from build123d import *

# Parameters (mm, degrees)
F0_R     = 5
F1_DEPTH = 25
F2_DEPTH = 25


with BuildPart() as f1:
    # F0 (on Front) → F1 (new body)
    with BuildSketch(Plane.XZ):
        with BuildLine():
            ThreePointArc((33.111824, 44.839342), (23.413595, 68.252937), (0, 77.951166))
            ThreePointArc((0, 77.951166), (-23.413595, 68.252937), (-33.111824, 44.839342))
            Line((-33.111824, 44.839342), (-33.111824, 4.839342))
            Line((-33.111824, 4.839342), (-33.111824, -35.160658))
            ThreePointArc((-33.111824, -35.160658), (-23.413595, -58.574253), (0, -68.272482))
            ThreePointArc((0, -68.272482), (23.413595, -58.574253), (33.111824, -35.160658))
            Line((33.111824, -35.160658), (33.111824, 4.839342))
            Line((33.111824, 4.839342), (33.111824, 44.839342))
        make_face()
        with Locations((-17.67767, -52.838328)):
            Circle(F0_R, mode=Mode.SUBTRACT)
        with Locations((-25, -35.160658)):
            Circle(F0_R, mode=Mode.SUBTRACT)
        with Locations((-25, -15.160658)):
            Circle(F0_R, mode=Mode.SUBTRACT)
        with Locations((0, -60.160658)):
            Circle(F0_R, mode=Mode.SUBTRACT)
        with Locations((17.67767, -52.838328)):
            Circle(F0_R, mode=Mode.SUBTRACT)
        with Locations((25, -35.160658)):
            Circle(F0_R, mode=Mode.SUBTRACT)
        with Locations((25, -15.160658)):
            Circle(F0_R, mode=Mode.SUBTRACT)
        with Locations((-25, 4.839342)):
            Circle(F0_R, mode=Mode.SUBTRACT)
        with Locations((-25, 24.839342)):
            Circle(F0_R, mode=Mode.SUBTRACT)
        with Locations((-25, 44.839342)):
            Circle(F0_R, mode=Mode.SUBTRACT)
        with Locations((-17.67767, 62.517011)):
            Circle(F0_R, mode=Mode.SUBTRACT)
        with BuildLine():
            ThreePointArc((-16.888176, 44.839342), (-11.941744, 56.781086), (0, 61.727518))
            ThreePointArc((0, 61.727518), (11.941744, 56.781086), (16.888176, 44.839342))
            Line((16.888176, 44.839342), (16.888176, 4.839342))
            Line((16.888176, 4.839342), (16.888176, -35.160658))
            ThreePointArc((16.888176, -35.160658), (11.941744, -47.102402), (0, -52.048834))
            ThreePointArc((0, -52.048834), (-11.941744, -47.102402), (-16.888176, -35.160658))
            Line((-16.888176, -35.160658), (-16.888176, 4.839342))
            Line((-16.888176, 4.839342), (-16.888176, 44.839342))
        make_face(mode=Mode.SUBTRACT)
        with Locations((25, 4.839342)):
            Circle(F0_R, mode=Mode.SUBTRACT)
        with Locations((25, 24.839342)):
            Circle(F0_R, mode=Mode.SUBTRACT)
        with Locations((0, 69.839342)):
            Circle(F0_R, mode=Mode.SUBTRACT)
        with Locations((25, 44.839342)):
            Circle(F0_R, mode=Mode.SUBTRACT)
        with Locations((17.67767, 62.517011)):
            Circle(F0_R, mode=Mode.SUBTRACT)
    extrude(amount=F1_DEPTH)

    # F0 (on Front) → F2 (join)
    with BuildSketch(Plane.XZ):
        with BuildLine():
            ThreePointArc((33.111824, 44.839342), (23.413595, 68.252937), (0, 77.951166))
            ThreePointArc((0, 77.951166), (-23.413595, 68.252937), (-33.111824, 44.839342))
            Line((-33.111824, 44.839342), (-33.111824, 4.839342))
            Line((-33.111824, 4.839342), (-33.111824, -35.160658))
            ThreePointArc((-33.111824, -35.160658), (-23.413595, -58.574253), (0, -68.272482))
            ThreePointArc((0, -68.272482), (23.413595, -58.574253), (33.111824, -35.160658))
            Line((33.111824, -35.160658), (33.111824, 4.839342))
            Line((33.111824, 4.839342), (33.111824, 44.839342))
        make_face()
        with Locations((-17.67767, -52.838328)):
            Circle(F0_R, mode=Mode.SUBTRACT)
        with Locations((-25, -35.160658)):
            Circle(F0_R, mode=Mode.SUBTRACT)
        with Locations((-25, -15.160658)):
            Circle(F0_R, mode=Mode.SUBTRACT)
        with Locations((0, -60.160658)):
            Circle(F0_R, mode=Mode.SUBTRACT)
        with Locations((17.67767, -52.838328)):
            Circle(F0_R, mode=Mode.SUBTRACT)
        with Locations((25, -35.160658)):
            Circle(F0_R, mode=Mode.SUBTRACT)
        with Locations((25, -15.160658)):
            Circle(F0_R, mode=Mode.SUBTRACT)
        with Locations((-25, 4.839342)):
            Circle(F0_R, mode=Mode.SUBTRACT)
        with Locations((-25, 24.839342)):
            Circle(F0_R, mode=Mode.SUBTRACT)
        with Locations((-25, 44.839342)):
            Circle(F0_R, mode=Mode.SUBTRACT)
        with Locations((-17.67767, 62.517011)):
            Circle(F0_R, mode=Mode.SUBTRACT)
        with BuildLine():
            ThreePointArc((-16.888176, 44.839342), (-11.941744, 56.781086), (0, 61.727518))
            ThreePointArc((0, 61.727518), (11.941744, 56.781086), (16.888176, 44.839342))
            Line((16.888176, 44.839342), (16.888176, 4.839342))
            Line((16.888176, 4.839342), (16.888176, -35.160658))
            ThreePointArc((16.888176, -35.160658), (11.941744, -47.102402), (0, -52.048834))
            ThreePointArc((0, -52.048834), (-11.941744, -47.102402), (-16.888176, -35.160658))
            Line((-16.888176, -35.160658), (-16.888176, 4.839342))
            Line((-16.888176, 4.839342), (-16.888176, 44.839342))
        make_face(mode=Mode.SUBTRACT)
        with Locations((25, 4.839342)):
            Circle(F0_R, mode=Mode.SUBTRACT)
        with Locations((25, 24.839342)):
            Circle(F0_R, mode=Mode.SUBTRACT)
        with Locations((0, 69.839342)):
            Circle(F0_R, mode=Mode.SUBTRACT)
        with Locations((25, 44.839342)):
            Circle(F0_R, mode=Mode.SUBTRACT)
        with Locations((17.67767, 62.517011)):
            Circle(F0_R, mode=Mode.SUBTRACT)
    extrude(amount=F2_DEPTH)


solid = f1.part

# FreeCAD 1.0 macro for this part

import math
import FreeCAD as App
import Part
import Sketcher
from FreeCAD import Vector

doc = App.newDocument("Part")
body = doc.addObject("PartDesign::Body", "Body")

# Sketch on XZ plane
sketch1 = doc.addObject("Sketcher::SketchObject", "Sketch")
body.addObject(sketch1)
sketch1.AttachmentSupport = (doc.XZ_Plane, [""])
sketch1.MapMode = "FlatFace"
sketch1.addGeometry([
    Part.ArcOfCircle(Part.Circle(Vector(0, 45, 0), Vector(0, 0, 1), 33), math.radians(0), math.radians(90)),  # 0
    Part.ArcOfCircle(Part.Circle(Vector(0, 45, 0), Vector(0, 0, 1), 33), math.radians(90), math.radians(180)),  # 1
    Part.LineSegment(Vector(-33, 45, 0), Vector(-33, -35, 0)),  # 2
    Part.ArcOfCircle(Part.Circle(Vector(0, -35, 0), Vector(0, 0, 1), 33), math.radians(-180), math.radians(-90)),  # 3
    Part.ArcOfCircle(Part.Circle(Vector(0, -35, 0), Vector(0, 0, 1), 33), math.radians(-90), math.radians(0)),  # 4
    Part.LineSegment(Vector(33, -35, 0), Vector(33, 45, 0)),  # 5
    Part.Circle(Vector(-18, -53, 0), Vector(0, 0, 1), 5),  # 6
    Part.Circle(Vector(-25, -35, 0), Vector(0, 0, 1), 5),  # 7
    Part.Circle(Vector(-25, -15, 0), Vector(0, 0, 1), 5),  # 8
    Part.Circle(Vector(0, -60, 0), Vector(0, 0, 1), 5),  # 9
    Part.Circle(Vector(18, -53, 0), Vector(0, 0, 1), 5),  # 10
    Part.Circle(Vector(25, -35, 0), Vector(0, 0, 1), 5),  # 11
    Part.Circle(Vector(25, -15, 0), Vector(0, 0, 1), 5),  # 12
    Part.Circle(Vector(-25, 5, 0), Vector(0, 0, 1), 5),  # 13
    Part.Circle(Vector(-25, 25, 0), Vector(0, 0, 1), 5),  # 14
    Part.Circle(Vector(-25, 45, 0), Vector(0, 0, 1), 5),  # 15
    Part.Circle(Vector(-18, 63, 0), Vector(0, 0, 1), 5),  # 16
    Part.LineSegment(Vector(-17, -35, 0), Vector(-17, 45, 0)),  # 17
    Part.ArcOfCircle(Part.Circle(Vector(0, 45, 0), Vector(0, 0, 1), 17), math.radians(90), math.radians(180)),  # 18
    Part.ArcOfCircle(Part.Circle(Vector(0, 45, 0), Vector(0, 0, 1), 17), math.radians(0), math.radians(90)),  # 19
    Part.LineSegment(Vector(17, 45, 0), Vector(17, -35, 0)),  # 20
    Part.ArcOfCircle(Part.Circle(Vector(0, -35, 0), Vector(0, 0, 1), 17), math.radians(-90), math.radians(0)),  # 21
    Part.ArcOfCircle(Part.Circle(Vector(0, -35, 0), Vector(0, 0, 1), 17), math.radians(180), math.radians(270)),  # 22
    Part.Circle(Vector(25, 5, 0), Vector(0, 0, 1), 5),  # 23
    Part.Circle(Vector(25, 25, 0), Vector(0, 0, 1), 5),  # 24
    Part.Circle(Vector(0, 70, 0), Vector(0, 0, 1), 5),  # 25
    Part.Circle(Vector(25, 45, 0), Vector(0, 0, 1), 5),  # 26
    Part.Circle(Vector(18, 63, 0), Vector(0, 0, 1), 5),  # 27
], False)
sketch1.addConstraint([
    Sketcher.Constraint("Tangent", 0, 2, 1, 1),
    Sketcher.Constraint("Tangent", 1, 2, 2, 1),
    Sketcher.Constraint("Tangent", 2, 2, 3, 1),
    Sketcher.Constraint("Tangent", 3, 2, 4, 1),
    Sketcher.Constraint("Tangent", 4, 2, 5, 1),
    Sketcher.Constraint("Tangent", 5, 2, 0, 1),
    Sketcher.Constraint("Tangent", 17, 2, 18, 2),
    Sketcher.Constraint("Tangent", 18, 1, 19, 2),
    Sketcher.Constraint("Tangent", 19, 1, 20, 1),
    Sketcher.Constraint("Tangent", 20, 2, 21, 2),
    Sketcher.Constraint("Tangent", 21, 1, 22, 2),
    Sketcher.Constraint("Tangent", 22, 1, 17, 1),
    Sketcher.Constraint("Vertical", 2),
    Sketcher.Constraint("Vertical", 5),
    Sketcher.Constraint("Vertical", 17),
    Sketcher.Constraint("Vertical", 20),
    Sketcher.Constraint("Coincident", 18, 3, 0, 3),
    Sketcher.Constraint("Coincident", 21, 3, 3, 3),
    Sketcher.Constraint("Equal", 0, 1),
    Sketcher.Constraint("Equal", 1, 3),
    Sketcher.Constraint("Equal", 6, 7),
    Sketcher.Constraint("Equal", 7, 8),
    Sketcher.Constraint("Equal", 8, 9),
    Sketcher.Constraint("Equal", 9, 10),
    Sketcher.Constraint("Equal", 10, 11),
    Sketcher.Constraint("Equal", 11, 12),
    Sketcher.Constraint("Equal", 12, 13),
    Sketcher.Constraint("Equal", 13, 14),
    Sketcher.Constraint("Equal", 14, 15),
    Sketcher.Constraint("Equal", 15, 16),
    Sketcher.Constraint("Equal", 18, 19),
    Sketcher.Constraint("Equal", 16, 23),
    Sketcher.Constraint("Equal", 23, 24),
    Sketcher.Constraint("Equal", 24, 25),
    Sketcher.Constraint("Equal", 25, 26),
    Sketcher.Constraint("Equal", 26, 27),
    Sketcher.Constraint("Symmetric", 6, 3, 10, 3, -2),
    Sketcher.Constraint("Symmetric", 7, 3, 11, 3, -2),
    Sketcher.Constraint("Symmetric", 8, 3, 12, 3, -2),
    Sketcher.Constraint("Symmetric", 13, 3, 23, 3, -2),
    Sketcher.Constraint("Symmetric", 14, 3, 24, 3, -2),
    Sketcher.Constraint("Symmetric", 15, 3, 26, 3, -2),
    Sketcher.Constraint("Symmetric", 16, 3, 27, 3, -2),
    Sketcher.Constraint("PointOnObject", 0, 3, -2),
    Sketcher.Constraint("PointOnObject", 9, 3, -2),
    Sketcher.Constraint("PointOnObject", 25, 3, -2),
    Sketcher.Constraint("PointOnObject", 0, 2, -2),
    Sketcher.Constraint("PointOnObject", 3, 2, -2),
    Sketcher.Constraint("PointOnObject", 18, 1, -2),
    Sketcher.Constraint("PointOnObject", 21, 1, -2),
    Sketcher.Constraint("Horizontal", 4, 3, 7, 3),
    Sketcher.Constraint("Horizontal", 1, 3, 15, 3),
    Sketcher.Constraint("Vertical", 7, 3, 8, 3),
    Sketcher.Constraint("Vertical", 8, 3, 13, 3),
    Sketcher.Constraint("Vertical", 13, 3, 14, 3),
    Sketcher.Constraint("Vertical", 14, 3, 15, 3),
    Sketcher.Constraint("Vertical", 6, 3, 16, 3),
    Sketcher.Constraint("Diameter", 6, 10.0),
    Sketcher.Constraint("DistanceY", 2, 2, 2, 1, 80.0),
    Sketcher.Constraint("DistanceX", 7, 3, -1, 1, 25.0),
    Sketcher.Constraint("DistanceY", 7, 3, 8, 3, 20.0),
    Sketcher.Constraint("DistanceY", 9, 3, 3, 3, 25.000001),
    Sketcher.Constraint("DistanceY", 8, 3, 13, 3, 20.0),
    Sketcher.Constraint("DistanceY", 13, 3, 14, 3, 20.0),
    Sketcher.Constraint("DistanceY", 18, 3, 25, 3, 24.999999),
    Sketcher.Constraint("Radius", 0, 33.111825),
    Sketcher.Constraint("Radius", 18, 16.888175),
    Sketcher.Constraint("DistanceY", -1, 1, 0, 3, 44.839341),
    Sketcher.Constraint("DistanceX", 6, 3, -1, 1, 17.67767),
    Sketcher.Constraint("DistanceY", -1, 1, 16, 3, 62.517011),
    Sketcher.Constraint("DistanceY", 6, 3, 4, 3, 17.677671),
])
pad1 = doc.addObject("PartDesign::Pad", "Pad")
body.addObject(pad1)
pad1.Profile = sketch1
pad1.Length = 25

# Sketch on XZ plane
sketch2 = doc.addObject("Sketcher::SketchObject", "Sketch001")
body.addObject(sketch2)
sketch2.AttachmentSupport = (doc.XZ_Plane, [""])
sketch2.MapMode = "FlatFace"
sketch2.addGeometry([
    Part.ArcOfCircle(Part.Circle(Vector(0, 45, 0), Vector(0, 0, 1), 33), math.radians(0), math.radians(90)),  # 0
    Part.ArcOfCircle(Part.Circle(Vector(0, 45, 0), Vector(0, 0, 1), 33), math.radians(90), math.radians(180)),  # 1
    Part.LineSegment(Vector(-33, 45, 0), Vector(-33, -35, 0)),  # 2
    Part.ArcOfCircle(Part.Circle(Vector(0, -35, 0), Vector(0, 0, 1), 33), math.radians(-180), math.radians(-90)),  # 3
    Part.ArcOfCircle(Part.Circle(Vector(0, -35, 0), Vector(0, 0, 1), 33), math.radians(-90), math.radians(0)),  # 4
    Part.LineSegment(Vector(33, -35, 0), Vector(33, 45, 0)),  # 5
    Part.Circle(Vector(-18, -53, 0), Vector(0, 0, 1), 5),  # 6
    Part.Circle(Vector(-25, -35, 0), Vector(0, 0, 1), 5),  # 7
    Part.Circle(Vector(-25, -15, 0), Vector(0, 0, 1), 5),  # 8
    Part.Circle(Vector(0, -60, 0), Vector(0, 0, 1), 5),  # 9
    Part.Circle(Vector(18, -53, 0), Vector(0, 0, 1), 5),  # 10
    Part.Circle(Vector(25, -35, 0), Vector(0, 0, 1), 5),  # 11
    Part.Circle(Vector(25, -15, 0), Vector(0, 0, 1), 5),  # 12
    Part.Circle(Vector(-25, 5, 0), Vector(0, 0, 1), 5),  # 13
    Part.Circle(Vector(-25, 25, 0), Vector(0, 0, 1), 5),  # 14
    Part.Circle(Vector(-25, 45, 0), Vector(0, 0, 1), 5),  # 15
    Part.Circle(Vector(-18, 63, 0), Vector(0, 0, 1), 5),  # 16
    Part.LineSegment(Vector(-17, -35, 0), Vector(-17, 45, 0)),  # 17
    Part.ArcOfCircle(Part.Circle(Vector(0, 45, 0), Vector(0, 0, 1), 17), math.radians(90), math.radians(180)),  # 18
    Part.ArcOfCircle(Part.Circle(Vector(0, 45, 0), Vector(0, 0, 1), 17), math.radians(0), math.radians(90)),  # 19
    Part.LineSegment(Vector(17, 45, 0), Vector(17, -35, 0)),  # 20
    Part.ArcOfCircle(Part.Circle(Vector(0, -35, 0), Vector(0, 0, 1), 17), math.radians(-90), math.radians(0)),  # 21
    Part.ArcOfCircle(Part.Circle(Vector(0, -35, 0), Vector(0, 0, 1), 17), math.radians(180), math.radians(270)),  # 22
    Part.Circle(Vector(25, 5, 0), Vector(0, 0, 1), 5),  # 23
    Part.Circle(Vector(25, 25, 0), Vector(0, 0, 1), 5),  # 24
    Part.Circle(Vector(0, 70, 0), Vector(0, 0, 1), 5),  # 25
    Part.Circle(Vector(25, 45, 0), Vector(0, 0, 1), 5),  # 26
    Part.Circle(Vector(18, 63, 0), Vector(0, 0, 1), 5),  # 27
], False)
sketch2.addConstraint([
    Sketcher.Constraint("Tangent", 0, 2, 1, 1),
    Sketcher.Constraint("Tangent", 1, 2, 2, 1),
    Sketcher.Constraint("Tangent", 2, 2, 3, 1),
    Sketcher.Constraint("Tangent", 3, 2, 4, 1),
    Sketcher.Constraint("Tangent", 4, 2, 5, 1),
    Sketcher.Constraint("Tangent", 5, 2, 0, 1),
    Sketcher.Constraint("Tangent", 17, 2, 18, 2),
    Sketcher.Constraint("Tangent", 18, 1, 19, 2),
    Sketcher.Constraint("Tangent", 19, 1, 20, 1),
    Sketcher.Constraint("Tangent", 20, 2, 21, 2),
    Sketcher.Constraint("Tangent", 21, 1, 22, 2),
    Sketcher.Constraint("Tangent", 22, 1, 17, 1),
    Sketcher.Constraint("Vertical", 2),
    Sketcher.Constraint("Vertical", 5),
    Sketcher.Constraint("Vertical", 17),
    Sketcher.Constraint("Vertical", 20),
    Sketcher.Constraint("Coincident", 18, 3, 0, 3),
    Sketcher.Constraint("Coincident", 21, 3, 3, 3),
    Sketcher.Constraint("Equal", 0, 1),
    Sketcher.Constraint("Equal", 1, 3),
    Sketcher.Constraint("Equal", 6, 7),
    Sketcher.Constraint("Equal", 7, 8),
    Sketcher.Constraint("Equal", 8, 9),
    Sketcher.Constraint("Equal", 9, 10),
    Sketcher.Constraint("Equal", 10, 11),
    Sketcher.Constraint("Equal", 11, 12),
    Sketcher.Constraint("Equal", 12, 13),
    Sketcher.Constraint("Equal", 13, 14),
    Sketcher.Constraint("Equal", 14, 15),
    Sketcher.Constraint("Equal", 15, 16),
    Sketcher.Constraint("Equal", 18, 19),
    Sketcher.Constraint("Equal", 16, 23),
    Sketcher.Constraint("Equal", 23, 24),
    Sketcher.Constraint("Equal", 24, 25),
    Sketcher.Constraint("Equal", 25, 26),
    Sketcher.Constraint("Equal", 26, 27),
    Sketcher.Constraint("Symmetric", 6, 3, 10, 3, -2),
    Sketcher.Constraint("Symmetric", 7, 3, 11, 3, -2),
    Sketcher.Constraint("Symmetric", 8, 3, 12, 3, -2),
    Sketcher.Constraint("Symmetric", 13, 3, 23, 3, -2),
    Sketcher.Constraint("Symmetric", 14, 3, 24, 3, -2),
    Sketcher.Constraint("Symmetric", 15, 3, 26, 3, -2),
    Sketcher.Constraint("Symmetric", 16, 3, 27, 3, -2),
    Sketcher.Constraint("PointOnObject", 0, 3, -2),
    Sketcher.Constraint("PointOnObject", 9, 3, -2),
    Sketcher.Constraint("PointOnObject", 25, 3, -2),
    Sketcher.Constraint("PointOnObject", 0, 2, -2),
    Sketcher.Constraint("PointOnObject", 3, 2, -2),
    Sketcher.Constraint("PointOnObject", 18, 1, -2),
    Sketcher.Constraint("PointOnObject", 21, 1, -2),
    Sketcher.Constraint("Horizontal", 4, 3, 7, 3),
    Sketcher.Constraint("Horizontal", 1, 3, 15, 3),
    Sketcher.Constraint("Vertical", 7, 3, 8, 3),
    Sketcher.Constraint("Vertical", 8, 3, 13, 3),
    Sketcher.Constraint("Vertical", 13, 3, 14, 3),
    Sketcher.Constraint("Vertical", 14, 3, 15, 3),
    Sketcher.Constraint("Vertical", 6, 3, 16, 3),
    Sketcher.Constraint("Diameter", 6, 10.0),
    Sketcher.Constraint("DistanceY", 2, 2, 2, 1, 80.0),
    Sketcher.Constraint("DistanceX", 7, 3, -1, 1, 25.0),
    Sketcher.Constraint("DistanceY", 7, 3, 8, 3, 20.0),
    Sketcher.Constraint("DistanceY", 9, 3, 3, 3, 25.000001),
    Sketcher.Constraint("DistanceY", 8, 3, 13, 3, 20.0),
    Sketcher.Constraint("DistanceY", 13, 3, 14, 3, 20.0),
    Sketcher.Constraint("DistanceY", 18, 3, 25, 3, 24.999999),
    Sketcher.Constraint("Radius", 0, 33.111825),
    Sketcher.Constraint("Radius", 18, 16.888175),
    Sketcher.Constraint("DistanceY", -1, 1, 0, 3, 44.839341),
    Sketcher.Constraint("DistanceX", 6, 3, -1, 1, 17.67767),
    Sketcher.Constraint("DistanceY", -1, 1, 16, 3, 62.517011),
    Sketcher.Constraint("DistanceY", 6, 3, 4, 3, 17.677671),
])
pad2 = doc.addObject("PartDesign::Pad", "Pad001")
body.addObject(pad2)
pad2.Profile = sketch2
pad2.Length = 25

doc.recompute()
